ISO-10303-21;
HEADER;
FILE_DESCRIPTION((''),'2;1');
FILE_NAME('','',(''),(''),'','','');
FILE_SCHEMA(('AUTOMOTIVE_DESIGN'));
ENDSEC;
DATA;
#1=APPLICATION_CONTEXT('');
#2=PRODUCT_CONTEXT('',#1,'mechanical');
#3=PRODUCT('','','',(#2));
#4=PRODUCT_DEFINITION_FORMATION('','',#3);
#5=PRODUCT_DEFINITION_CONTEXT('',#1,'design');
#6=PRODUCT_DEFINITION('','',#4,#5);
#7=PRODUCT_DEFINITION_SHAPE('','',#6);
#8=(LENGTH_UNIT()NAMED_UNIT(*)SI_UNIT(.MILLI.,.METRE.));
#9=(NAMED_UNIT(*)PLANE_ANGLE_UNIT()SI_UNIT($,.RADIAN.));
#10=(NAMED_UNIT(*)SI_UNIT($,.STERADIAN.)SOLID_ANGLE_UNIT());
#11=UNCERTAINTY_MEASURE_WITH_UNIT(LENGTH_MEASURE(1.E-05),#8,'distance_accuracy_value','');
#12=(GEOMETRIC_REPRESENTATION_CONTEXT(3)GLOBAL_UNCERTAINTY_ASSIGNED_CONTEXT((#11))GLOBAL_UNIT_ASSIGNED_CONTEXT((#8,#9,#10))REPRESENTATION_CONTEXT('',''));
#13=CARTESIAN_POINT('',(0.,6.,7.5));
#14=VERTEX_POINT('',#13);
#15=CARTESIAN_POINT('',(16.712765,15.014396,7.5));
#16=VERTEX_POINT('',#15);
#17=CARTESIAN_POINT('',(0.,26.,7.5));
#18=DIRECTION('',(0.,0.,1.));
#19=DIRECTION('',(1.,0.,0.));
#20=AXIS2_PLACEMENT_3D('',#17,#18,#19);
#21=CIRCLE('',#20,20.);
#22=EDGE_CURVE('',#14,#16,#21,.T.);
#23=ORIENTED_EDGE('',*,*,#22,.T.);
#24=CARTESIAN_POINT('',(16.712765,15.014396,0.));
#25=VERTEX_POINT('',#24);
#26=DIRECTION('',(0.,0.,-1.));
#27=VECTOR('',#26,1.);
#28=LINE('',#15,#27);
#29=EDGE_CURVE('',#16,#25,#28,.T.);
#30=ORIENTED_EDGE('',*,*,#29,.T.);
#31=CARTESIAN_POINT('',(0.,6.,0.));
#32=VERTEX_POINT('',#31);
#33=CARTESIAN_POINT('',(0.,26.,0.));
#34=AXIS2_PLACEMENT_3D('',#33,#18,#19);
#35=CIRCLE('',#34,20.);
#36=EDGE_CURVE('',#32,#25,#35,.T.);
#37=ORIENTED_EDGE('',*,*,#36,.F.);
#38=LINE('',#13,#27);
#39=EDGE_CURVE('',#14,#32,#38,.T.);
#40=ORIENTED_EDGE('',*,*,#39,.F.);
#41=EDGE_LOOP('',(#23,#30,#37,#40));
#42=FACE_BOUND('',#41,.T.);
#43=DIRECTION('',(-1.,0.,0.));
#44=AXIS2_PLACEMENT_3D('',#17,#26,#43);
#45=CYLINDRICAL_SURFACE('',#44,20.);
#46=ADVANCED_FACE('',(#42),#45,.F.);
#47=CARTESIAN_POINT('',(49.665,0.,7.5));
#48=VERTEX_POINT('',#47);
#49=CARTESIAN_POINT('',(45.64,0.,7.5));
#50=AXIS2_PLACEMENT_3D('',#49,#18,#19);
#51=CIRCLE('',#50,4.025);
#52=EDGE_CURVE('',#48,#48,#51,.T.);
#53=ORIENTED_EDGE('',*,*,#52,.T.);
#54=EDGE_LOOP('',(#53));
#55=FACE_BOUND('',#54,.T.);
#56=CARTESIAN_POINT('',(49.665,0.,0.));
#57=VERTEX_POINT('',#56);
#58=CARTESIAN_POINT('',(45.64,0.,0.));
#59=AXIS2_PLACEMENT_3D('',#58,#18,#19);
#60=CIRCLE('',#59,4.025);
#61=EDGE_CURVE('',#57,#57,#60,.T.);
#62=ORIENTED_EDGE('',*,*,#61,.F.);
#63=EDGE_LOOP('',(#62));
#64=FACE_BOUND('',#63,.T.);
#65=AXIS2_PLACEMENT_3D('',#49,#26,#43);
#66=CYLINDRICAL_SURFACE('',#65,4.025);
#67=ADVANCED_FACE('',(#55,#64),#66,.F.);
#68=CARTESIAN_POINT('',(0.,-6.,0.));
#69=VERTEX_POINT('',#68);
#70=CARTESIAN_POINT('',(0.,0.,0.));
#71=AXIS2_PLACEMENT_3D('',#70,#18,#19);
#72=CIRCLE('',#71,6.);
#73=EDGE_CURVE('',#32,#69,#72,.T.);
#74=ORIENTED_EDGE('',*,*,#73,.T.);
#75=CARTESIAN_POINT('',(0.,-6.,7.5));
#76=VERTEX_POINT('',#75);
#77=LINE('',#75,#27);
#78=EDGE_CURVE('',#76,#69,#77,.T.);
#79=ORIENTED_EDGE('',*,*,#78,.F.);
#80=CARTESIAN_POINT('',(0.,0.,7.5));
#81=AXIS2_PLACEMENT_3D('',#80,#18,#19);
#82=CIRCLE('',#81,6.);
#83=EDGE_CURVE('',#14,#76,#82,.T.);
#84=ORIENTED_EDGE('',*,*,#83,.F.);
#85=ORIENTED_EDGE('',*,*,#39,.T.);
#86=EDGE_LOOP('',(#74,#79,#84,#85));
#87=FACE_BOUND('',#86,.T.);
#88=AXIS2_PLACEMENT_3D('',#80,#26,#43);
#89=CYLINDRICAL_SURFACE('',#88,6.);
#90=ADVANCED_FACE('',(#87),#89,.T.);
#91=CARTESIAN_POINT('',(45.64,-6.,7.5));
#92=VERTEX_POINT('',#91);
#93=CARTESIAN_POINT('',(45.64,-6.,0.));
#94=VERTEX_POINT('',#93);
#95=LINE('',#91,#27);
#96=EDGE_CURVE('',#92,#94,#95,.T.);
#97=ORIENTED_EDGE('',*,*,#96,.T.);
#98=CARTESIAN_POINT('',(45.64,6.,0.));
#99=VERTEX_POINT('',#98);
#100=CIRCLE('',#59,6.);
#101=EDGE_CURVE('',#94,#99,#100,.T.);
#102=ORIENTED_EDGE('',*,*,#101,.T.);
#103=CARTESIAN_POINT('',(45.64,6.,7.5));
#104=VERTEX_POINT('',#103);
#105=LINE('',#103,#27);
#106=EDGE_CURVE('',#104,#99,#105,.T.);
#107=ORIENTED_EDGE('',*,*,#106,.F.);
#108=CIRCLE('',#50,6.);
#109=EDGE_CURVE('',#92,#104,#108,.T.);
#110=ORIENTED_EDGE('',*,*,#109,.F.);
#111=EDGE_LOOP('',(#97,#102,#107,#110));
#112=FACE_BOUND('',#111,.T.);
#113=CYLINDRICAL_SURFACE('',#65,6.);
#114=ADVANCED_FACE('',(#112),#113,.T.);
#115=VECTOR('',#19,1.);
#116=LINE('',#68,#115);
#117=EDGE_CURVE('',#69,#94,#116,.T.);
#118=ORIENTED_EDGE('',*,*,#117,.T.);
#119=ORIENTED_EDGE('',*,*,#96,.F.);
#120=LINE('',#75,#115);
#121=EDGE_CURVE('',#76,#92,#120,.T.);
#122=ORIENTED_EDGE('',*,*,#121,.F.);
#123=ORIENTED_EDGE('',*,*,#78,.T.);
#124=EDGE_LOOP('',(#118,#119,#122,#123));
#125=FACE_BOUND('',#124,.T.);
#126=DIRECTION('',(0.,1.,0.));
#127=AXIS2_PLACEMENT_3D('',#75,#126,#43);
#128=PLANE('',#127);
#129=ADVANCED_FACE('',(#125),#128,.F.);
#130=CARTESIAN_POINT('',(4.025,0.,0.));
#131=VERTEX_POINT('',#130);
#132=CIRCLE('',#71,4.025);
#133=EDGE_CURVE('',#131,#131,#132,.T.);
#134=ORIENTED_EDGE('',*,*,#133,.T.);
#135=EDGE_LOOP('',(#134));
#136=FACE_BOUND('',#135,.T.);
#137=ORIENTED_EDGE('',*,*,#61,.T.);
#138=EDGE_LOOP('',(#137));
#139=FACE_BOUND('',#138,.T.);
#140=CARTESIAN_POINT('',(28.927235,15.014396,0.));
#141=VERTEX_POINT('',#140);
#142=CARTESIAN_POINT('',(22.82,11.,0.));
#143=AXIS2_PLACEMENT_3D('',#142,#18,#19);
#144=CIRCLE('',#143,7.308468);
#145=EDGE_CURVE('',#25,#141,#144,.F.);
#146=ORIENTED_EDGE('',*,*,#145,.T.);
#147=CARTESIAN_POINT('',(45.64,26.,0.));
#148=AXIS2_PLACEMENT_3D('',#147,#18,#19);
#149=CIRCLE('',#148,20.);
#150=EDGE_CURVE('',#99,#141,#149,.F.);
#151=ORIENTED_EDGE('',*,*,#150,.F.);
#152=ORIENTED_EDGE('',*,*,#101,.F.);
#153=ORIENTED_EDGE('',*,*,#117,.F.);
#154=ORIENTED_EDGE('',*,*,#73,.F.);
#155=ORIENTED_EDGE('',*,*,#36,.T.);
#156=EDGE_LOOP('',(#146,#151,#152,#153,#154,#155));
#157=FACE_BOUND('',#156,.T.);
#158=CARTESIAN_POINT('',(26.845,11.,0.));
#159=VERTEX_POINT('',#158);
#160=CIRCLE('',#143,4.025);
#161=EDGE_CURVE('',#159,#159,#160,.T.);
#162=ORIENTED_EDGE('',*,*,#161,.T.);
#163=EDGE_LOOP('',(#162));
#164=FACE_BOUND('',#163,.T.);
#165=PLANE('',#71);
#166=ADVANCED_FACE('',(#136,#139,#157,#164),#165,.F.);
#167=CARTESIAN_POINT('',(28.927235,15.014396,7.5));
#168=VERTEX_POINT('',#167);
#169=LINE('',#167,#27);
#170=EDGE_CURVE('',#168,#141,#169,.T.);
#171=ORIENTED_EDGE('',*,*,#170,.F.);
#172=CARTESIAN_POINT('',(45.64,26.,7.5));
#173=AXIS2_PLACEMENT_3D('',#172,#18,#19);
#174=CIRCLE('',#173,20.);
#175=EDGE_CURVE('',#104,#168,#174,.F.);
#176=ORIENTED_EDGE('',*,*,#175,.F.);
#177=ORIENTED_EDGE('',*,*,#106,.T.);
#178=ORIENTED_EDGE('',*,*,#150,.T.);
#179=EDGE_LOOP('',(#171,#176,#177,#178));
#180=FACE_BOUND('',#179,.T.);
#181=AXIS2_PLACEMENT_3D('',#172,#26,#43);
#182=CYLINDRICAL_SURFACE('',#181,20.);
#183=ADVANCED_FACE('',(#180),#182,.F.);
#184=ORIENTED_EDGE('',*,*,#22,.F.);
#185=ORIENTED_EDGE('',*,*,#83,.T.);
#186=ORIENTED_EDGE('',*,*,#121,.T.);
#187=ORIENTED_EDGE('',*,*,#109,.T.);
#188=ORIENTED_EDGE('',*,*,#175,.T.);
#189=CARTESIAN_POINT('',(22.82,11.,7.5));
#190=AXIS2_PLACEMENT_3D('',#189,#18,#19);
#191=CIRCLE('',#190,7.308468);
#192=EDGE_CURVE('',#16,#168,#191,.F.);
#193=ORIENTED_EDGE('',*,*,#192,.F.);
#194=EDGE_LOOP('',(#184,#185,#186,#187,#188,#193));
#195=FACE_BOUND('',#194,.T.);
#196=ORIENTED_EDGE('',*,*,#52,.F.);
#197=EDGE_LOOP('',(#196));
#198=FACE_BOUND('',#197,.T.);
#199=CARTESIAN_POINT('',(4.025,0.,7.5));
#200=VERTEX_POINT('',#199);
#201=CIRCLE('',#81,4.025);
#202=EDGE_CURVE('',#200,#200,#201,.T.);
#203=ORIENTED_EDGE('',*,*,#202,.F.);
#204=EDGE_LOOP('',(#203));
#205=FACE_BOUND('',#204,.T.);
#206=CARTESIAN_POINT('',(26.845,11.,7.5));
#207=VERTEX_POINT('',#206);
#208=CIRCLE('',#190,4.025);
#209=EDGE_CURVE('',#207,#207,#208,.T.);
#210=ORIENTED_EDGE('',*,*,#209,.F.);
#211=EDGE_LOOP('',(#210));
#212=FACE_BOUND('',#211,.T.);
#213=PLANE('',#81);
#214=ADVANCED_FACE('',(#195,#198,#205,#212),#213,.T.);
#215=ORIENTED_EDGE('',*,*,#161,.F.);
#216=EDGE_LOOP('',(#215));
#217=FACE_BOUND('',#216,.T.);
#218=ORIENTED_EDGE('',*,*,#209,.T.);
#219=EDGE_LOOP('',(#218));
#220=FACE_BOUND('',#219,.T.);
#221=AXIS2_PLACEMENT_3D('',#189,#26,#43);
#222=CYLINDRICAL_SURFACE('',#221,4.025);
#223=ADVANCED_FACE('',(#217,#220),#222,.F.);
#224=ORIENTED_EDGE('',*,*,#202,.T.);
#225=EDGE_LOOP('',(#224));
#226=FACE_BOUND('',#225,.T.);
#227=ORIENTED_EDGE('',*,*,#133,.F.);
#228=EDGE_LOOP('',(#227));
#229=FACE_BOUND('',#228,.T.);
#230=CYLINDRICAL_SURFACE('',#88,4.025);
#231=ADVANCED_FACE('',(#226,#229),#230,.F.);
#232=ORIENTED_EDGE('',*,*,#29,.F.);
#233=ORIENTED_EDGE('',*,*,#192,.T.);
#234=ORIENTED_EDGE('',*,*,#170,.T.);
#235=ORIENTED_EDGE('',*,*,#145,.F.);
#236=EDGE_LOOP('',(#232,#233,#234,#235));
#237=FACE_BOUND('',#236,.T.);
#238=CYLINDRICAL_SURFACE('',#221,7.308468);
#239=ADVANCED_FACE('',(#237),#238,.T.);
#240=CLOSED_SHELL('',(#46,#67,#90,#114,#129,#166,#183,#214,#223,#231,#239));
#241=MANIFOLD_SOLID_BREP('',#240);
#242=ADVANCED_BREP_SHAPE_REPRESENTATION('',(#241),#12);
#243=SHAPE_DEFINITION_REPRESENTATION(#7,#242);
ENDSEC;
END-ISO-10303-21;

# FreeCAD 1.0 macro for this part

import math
import FreeCAD as App
import Part
import Sketcher
from FreeCAD import Vector

doc = App.newDocument("Part")
params = doc.addObject("Spreadsheet::Sheet", "Params")
for row, (alias, value) in enumerate([
    ("sketch1_radius", "6 mm"),
    ("sketch1_radius2", "20 mm"),
    ("sketch1_diameter", "8.05 mm"),
    ("sketch1_width", "45.64 mm"),
    ("pad1_length", "7.5 mm"),
], start=1):
    params.set(f"A{row}", alias)
    params.set(f"B{row}", "=" + value)
    params.setAlias(f"B{row}", alias)

body = doc.addObject("PartDesign::Body", "Body")

# Sketch on XY plane
sketch1 = doc.addObject("Sketcher::SketchObject", "Sketch")
body.addObject(sketch1)
sketch1.AttachmentSupport = (doc.XY_Plane, [""])
sketch1.MapMode = "FlatFace"
sketch1.addGeometry([
    Part.LineSegment(Vector(0, -6, 0), Vector(45.64, -6, 0)),  # 0
    Part.ArcOfCircle(Part.Circle(Vector(45.64, 0, 0), Vector(0, 0, 1), 6), math.radians(-90), math.radians(90)),  # 1
    Part.ArcOfCircle(Part.Circle(Vector(45.64, 26, 0), Vector(0, 0, 1), 20), math.radians(-146.682356), math.radians(-90)),  # 2
    Part.ArcOfCircle(Part.Circle(Vector(22.82, 11, 0), Vector(0, 0, 1), 7.308468), math.radians(33.317644), math.radians(146.682356)),  # 3
    Part.ArcOfCircle(Part.Circle(Vector(0, 26, 0), Vector(0, 0, 1), 20), math.radians(-90), math.radians(-33.317644)),  # 4
    Part.ArcOfCircle(Part.Circle(Vector(0, 0, 0), Vector(0, 0, 1), 6), math.radians(90), math.radians(270)),  # 5
    Part.Circle(Vector(0, 0, 0), Vector(0, 0, 1), 4.025),  # 6
    Part.Circle(Vector(45.64, 0, 0), Vector(0, 0, 1), 4.025),  # 7
    Part.Circle(Vector(22.82, 11, 0), Vector(0, 0, 1), 4.025),  # 8
], False)
sketch1.addConstraint([
    Sketcher.Constraint("Tangent", 0, 2, 1, 1),
    Sketcher.Constraint("Tangent", 1, 2, 2, 2),
    Sketcher.Constraint("Tangent", 2, 1, 3, 1),
    Sketcher.Constraint("Tangent", 3, 2, 4, 2),
    Sketcher.Constraint("Tangent", 4, 1, 5, 1),
    Sketcher.Constraint("Tangent", 5, 2, 0, 1),
    Sketcher.Constraint("Horizontal", 0),
    Sketcher.Constraint("Coincident", 5, 3, -1, 1),
    Sketcher.Constraint("Coincident", 6, 3, -1, 1),
    Sketcher.Constraint("Coincident", 7, 3, 1, 3),
    Sketcher.Constraint("Coincident", 8, 3, 3, 3),
    Sketcher.Constraint("Equal", 2, 4),
    Sketcher.Constraint("Equal", 1, 5),
    Sketcher.Constraint("Equal", 6, 7),
    Sketcher.Constraint("Equal", 7, 8),
    Sketcher.Constraint("PointOnObject", 4, 3, -2),
    Sketcher.Constraint("Vertical", 1, 3, 2, 3),
    Sketcher.Constraint("Radius", 1, 6.0),
    Sketcher.Constraint("Radius", 2, 20.0),
    Sketcher.Constraint("Diameter", 6, 8.05),
    Sketcher.Constraint("DistanceY", -1, 1, 3, 3, 11.0),
    Sketcher.Constraint("DistanceX", 0, 1, 0, 2, 45.64),
])
sketch1.setExpression("Constraints[17]", "Params.sketch1_radius")
sketch1.setExpression("Constraints[18]", "Params.sketch1_radius2")
sketch1.setExpression("Constraints[19]", "Params.sketch1_diameter")
sketch1.setExpression("Constraints[21]", "Params.sketch1_width")
pad1 = doc.addObject("PartDesign::Pad", "Pad")
body.addObject(pad1)
pad1.Profile = sketch1
pad1.setExpression("Length", "Params.pad1_length")

doc.recompute()
